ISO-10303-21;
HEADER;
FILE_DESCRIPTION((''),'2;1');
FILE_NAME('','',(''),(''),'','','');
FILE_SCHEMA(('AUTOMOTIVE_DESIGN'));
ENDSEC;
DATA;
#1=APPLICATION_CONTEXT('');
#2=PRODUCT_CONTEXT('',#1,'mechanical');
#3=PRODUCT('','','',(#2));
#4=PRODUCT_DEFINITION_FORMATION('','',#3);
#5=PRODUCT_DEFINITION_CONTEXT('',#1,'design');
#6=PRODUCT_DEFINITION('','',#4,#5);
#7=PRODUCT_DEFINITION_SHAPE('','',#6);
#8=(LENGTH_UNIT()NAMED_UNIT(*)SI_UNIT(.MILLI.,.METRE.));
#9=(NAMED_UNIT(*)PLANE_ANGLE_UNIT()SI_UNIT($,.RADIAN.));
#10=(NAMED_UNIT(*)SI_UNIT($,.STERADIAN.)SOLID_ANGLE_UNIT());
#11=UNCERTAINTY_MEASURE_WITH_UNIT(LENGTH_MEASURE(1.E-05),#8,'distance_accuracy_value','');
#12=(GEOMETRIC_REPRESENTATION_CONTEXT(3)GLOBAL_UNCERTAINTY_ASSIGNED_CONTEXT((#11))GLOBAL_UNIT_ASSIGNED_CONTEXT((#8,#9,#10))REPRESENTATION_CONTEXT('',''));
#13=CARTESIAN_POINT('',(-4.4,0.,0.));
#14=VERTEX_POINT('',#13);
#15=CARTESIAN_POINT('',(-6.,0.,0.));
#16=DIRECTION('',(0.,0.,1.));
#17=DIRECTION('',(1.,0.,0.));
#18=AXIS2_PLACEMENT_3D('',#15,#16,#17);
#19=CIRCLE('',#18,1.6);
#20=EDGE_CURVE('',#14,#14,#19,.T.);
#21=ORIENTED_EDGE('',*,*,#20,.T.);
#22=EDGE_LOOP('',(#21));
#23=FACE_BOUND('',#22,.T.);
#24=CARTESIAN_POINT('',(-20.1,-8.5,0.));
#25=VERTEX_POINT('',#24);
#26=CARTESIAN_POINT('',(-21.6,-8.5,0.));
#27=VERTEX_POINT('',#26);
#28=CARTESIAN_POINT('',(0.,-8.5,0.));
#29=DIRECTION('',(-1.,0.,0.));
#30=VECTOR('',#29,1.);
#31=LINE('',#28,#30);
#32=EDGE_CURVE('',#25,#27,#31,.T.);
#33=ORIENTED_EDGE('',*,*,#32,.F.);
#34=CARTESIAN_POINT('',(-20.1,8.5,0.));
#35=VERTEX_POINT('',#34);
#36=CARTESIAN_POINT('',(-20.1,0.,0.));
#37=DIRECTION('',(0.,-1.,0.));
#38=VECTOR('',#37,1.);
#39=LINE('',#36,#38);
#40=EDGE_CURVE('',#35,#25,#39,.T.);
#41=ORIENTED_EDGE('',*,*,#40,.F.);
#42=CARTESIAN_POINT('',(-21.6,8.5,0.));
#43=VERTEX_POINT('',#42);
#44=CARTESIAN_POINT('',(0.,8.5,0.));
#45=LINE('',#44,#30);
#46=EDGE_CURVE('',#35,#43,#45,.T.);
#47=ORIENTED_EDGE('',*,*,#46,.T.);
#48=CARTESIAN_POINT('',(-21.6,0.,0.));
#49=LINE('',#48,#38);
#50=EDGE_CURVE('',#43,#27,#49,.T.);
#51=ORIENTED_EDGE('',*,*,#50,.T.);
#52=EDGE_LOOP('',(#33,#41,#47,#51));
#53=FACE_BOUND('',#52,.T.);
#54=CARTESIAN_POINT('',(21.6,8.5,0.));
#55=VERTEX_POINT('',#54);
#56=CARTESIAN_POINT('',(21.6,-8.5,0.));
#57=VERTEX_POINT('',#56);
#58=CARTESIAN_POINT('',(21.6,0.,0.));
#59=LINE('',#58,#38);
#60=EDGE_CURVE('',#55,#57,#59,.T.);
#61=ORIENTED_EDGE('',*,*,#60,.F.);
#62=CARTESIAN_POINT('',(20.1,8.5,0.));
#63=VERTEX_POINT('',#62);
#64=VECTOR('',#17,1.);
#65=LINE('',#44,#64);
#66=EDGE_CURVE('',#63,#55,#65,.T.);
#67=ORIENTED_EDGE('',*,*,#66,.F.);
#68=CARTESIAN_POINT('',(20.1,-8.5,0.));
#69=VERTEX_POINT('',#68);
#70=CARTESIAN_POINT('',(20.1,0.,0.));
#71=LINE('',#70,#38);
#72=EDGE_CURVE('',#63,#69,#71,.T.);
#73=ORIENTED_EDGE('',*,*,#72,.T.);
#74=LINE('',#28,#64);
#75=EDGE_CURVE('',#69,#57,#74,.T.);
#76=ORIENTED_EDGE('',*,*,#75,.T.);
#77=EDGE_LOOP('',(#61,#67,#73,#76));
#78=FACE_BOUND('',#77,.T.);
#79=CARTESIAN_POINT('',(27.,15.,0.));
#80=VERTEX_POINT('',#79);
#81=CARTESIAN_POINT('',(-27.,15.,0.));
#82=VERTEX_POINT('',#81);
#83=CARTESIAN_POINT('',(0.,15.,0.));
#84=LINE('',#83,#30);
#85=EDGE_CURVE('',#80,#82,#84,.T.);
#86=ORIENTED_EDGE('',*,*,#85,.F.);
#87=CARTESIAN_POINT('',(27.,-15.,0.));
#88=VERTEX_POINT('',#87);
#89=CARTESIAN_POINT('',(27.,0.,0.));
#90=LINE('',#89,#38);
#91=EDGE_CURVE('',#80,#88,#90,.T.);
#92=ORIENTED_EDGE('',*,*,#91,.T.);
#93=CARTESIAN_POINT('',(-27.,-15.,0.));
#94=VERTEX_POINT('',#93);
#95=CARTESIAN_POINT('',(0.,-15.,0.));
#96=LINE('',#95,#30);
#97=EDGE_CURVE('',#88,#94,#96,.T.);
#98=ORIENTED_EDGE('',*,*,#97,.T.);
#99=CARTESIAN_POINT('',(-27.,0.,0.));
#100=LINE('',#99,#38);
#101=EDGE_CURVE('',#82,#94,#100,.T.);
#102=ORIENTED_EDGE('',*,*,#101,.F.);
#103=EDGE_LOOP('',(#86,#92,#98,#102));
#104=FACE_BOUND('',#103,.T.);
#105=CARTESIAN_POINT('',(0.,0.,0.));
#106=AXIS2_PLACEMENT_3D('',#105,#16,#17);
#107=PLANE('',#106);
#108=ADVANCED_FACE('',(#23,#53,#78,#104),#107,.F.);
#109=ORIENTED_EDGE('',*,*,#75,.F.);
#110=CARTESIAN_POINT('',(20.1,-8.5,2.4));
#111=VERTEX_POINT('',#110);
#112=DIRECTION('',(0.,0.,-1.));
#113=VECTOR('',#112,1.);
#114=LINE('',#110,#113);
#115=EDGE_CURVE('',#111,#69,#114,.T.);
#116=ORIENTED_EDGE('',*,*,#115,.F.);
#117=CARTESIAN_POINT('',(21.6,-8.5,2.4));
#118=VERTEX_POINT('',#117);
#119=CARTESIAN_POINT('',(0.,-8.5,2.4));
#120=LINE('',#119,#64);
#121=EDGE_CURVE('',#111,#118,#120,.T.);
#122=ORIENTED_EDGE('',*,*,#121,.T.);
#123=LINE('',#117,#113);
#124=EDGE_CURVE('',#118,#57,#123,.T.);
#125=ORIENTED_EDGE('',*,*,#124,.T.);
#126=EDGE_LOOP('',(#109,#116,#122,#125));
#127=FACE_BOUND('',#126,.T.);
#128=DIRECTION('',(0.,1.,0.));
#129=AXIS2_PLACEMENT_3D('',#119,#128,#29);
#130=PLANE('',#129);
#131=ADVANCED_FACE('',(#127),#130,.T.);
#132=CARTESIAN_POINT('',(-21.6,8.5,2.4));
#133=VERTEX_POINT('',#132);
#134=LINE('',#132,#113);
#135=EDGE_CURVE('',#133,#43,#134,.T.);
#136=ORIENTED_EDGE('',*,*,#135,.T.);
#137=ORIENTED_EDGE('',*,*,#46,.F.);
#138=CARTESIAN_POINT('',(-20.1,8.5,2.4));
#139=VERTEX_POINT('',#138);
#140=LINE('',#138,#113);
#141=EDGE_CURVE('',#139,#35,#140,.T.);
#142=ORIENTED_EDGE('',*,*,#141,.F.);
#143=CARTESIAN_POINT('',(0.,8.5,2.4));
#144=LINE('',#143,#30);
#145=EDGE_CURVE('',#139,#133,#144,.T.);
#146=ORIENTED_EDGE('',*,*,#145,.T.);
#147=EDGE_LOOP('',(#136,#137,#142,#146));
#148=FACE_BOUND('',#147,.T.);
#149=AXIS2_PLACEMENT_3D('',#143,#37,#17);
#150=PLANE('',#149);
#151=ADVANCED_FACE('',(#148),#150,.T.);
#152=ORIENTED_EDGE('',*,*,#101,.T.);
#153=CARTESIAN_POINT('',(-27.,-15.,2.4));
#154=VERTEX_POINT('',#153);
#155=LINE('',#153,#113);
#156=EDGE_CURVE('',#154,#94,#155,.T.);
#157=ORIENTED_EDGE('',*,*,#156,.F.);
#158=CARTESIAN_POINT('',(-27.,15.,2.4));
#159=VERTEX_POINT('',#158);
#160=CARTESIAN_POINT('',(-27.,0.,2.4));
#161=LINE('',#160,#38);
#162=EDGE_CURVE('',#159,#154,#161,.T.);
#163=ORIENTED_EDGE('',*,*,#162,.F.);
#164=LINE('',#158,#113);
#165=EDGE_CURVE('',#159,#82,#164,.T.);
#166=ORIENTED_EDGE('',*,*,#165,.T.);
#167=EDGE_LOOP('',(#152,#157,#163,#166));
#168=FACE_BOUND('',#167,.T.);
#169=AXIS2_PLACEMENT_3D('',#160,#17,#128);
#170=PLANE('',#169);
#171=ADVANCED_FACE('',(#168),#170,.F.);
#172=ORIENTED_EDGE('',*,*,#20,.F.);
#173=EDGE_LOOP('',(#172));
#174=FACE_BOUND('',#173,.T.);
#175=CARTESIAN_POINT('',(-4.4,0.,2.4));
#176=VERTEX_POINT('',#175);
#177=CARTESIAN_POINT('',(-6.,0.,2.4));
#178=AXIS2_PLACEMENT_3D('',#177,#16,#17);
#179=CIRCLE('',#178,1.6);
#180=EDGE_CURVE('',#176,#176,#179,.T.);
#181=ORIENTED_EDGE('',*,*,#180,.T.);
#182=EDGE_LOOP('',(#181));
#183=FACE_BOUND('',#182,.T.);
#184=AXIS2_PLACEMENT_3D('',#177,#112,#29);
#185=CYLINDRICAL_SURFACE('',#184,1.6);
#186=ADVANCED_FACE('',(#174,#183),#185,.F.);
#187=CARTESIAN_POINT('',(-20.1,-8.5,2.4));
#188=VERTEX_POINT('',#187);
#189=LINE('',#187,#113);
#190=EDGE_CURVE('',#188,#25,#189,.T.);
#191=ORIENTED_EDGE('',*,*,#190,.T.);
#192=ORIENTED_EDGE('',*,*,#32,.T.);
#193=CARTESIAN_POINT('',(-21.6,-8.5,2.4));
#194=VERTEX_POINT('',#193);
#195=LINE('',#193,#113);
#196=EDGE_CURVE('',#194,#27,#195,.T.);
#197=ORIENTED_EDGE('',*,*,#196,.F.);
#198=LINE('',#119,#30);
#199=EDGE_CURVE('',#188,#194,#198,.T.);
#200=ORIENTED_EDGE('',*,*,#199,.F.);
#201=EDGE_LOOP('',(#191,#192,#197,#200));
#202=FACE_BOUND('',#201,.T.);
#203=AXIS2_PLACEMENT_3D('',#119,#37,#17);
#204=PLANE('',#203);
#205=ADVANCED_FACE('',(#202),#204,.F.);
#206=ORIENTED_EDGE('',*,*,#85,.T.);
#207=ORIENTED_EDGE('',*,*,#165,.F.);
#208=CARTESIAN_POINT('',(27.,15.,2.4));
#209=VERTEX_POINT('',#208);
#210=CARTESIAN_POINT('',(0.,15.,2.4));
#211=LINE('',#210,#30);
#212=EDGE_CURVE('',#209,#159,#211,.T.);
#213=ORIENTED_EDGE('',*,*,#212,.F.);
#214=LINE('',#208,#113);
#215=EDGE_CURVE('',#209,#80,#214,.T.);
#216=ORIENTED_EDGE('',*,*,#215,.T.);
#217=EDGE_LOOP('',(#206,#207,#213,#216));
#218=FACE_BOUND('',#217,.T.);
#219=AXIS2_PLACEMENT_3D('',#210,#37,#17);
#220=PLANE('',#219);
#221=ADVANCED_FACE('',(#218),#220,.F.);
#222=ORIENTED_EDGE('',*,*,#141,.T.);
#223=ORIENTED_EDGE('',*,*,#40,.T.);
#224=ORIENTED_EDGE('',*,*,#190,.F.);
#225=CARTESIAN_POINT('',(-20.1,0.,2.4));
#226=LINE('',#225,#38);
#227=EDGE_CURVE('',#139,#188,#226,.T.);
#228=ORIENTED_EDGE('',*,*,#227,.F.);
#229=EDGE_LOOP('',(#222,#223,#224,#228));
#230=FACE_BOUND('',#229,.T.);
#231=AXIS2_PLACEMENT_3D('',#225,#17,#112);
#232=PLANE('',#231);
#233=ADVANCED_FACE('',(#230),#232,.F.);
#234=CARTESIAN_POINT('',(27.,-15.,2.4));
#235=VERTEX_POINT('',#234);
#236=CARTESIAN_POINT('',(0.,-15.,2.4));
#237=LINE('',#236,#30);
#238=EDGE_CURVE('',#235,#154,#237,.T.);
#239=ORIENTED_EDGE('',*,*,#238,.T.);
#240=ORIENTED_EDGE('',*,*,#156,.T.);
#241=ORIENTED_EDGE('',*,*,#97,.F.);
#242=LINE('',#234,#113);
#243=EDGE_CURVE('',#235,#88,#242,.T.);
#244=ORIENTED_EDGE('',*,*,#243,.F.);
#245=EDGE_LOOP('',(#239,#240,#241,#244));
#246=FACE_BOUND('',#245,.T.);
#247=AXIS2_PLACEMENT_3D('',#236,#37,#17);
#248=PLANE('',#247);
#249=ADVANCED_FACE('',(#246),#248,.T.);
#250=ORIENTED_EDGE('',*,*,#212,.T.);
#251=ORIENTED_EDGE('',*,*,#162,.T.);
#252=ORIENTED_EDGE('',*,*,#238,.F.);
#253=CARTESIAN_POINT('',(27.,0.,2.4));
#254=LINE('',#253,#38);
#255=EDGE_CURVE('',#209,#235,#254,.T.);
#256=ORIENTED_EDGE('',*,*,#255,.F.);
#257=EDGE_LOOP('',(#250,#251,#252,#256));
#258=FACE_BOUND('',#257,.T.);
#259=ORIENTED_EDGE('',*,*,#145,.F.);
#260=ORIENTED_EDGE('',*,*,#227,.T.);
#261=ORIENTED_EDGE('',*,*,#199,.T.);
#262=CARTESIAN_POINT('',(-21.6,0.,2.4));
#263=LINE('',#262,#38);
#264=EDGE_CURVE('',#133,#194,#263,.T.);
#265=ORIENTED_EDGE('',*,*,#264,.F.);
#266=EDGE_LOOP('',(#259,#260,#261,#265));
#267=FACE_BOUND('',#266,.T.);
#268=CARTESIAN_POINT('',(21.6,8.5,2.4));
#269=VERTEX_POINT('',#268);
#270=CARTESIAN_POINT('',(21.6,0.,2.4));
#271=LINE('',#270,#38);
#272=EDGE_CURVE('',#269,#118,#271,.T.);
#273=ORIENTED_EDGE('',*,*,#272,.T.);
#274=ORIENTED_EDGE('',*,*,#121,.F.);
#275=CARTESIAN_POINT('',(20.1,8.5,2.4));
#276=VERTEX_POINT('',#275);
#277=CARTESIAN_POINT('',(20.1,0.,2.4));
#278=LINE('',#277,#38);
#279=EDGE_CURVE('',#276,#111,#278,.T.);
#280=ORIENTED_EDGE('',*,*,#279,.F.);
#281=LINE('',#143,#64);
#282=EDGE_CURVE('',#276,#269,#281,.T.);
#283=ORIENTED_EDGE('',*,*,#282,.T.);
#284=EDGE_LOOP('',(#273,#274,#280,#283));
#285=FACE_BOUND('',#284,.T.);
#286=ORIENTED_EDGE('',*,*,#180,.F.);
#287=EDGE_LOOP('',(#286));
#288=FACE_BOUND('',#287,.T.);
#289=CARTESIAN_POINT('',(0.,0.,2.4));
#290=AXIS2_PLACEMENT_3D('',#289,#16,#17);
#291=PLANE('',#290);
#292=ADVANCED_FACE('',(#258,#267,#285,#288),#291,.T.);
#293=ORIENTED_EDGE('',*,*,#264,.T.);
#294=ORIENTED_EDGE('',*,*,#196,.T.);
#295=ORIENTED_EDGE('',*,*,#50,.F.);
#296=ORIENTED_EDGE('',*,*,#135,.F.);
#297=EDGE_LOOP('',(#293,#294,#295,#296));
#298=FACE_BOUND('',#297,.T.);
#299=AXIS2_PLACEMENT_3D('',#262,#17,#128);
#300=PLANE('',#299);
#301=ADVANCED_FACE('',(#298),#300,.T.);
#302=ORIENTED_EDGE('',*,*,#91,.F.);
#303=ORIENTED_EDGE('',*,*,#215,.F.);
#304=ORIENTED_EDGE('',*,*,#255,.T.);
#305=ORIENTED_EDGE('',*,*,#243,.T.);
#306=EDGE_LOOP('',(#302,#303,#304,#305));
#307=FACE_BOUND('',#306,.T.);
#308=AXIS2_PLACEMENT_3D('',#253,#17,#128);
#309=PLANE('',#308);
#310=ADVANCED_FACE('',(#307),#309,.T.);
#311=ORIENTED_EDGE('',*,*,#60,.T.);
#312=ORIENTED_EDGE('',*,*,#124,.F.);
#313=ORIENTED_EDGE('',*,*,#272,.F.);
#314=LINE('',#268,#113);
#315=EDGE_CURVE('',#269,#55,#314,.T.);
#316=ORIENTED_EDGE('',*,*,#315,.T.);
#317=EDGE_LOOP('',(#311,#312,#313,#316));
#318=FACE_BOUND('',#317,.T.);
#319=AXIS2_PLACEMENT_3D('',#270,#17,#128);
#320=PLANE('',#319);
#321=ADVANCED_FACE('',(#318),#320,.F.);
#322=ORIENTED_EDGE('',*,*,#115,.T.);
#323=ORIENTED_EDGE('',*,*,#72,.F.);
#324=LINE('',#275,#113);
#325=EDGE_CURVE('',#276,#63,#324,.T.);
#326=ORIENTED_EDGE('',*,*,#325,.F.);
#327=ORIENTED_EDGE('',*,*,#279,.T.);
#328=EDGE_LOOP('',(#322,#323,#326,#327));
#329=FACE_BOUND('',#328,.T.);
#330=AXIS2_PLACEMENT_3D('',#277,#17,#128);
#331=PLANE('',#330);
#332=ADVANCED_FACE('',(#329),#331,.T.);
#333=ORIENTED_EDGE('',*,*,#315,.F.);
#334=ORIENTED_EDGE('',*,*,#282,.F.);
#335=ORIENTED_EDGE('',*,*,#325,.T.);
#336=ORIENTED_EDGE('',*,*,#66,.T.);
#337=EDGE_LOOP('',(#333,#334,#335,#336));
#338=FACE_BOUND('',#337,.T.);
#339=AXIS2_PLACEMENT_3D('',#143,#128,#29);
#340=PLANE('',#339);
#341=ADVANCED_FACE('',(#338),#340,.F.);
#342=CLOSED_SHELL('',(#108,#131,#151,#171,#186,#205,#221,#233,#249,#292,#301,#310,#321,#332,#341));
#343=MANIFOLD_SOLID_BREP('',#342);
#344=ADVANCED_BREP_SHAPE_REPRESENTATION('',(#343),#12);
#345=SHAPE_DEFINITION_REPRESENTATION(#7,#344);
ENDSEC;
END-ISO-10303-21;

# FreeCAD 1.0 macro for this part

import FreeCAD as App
import Part
import Sketcher

doc = App.newDocument("Part")
body = doc.addObject("PartDesign::Body", "Body")

# Sketch on XY plane
sketch1 = body.newObject("Sketcher::SketchObject", "Sketch")
sketch1.AttachmentSupport = (doc.getObject("XY_Plane"), [""])
sketch1.MapMode = "FlatFace"
sketch1.addGeometry([
    Part.LineSegment(App.Vector(-27, 15, 0), App.Vector(-27, -15, 0)),  # 0
    Part.LineSegment(App.Vector(-27, -15, 0), App.Vector(27, -15, 0)),  # 1
    Part.LineSegment(App.Vector(27, -15, 0), App.Vector(27, 15, 0)),  # 2
    Part.LineSegment(App.Vector(27, 15, 0), App.Vector(-27, 15, 0)),  # 3
    Part.LineSegment(App.Vector(-20.1, -8.5, 0), App.Vector(-21.6, -8.5, 0)),  # 4
    Part.LineSegment(App.Vector(-21.6, -8.5, 0), App.Vector(-21.6, 8.5, 0)),  # 5
    Part.LineSegment(App.Vector(-21.6, 8.5, 0), App.Vector(-20.1, 8.5, 0)),  # 6
    Part.LineSegment(App.Vector(-20.1, 8.5, 0), App.Vector(-20.1, -8.5, 0)),  # 7
    Part.Circle(App.Vector(-6, 0, 0), App.Vector(0, 0, 1), 1.6),  # 8
    Part.LineSegment(App.Vector(21.6, -8.5, 0), App.Vector(20.1, -8.5, 0)),  # 9
    Part.LineSegment(App.Vector(20.1, -8.5, 0), App.Vector(20.1, 8.5, 0)),  # 10
    Part.LineSegment(App.Vector(20.1, 8.5, 0), App.Vector(21.6, 8.5, 0)),  # 11
    Part.LineSegment(App.Vector(21.6, 8.5, 0), App.Vector(21.6, -8.5, 0)),  # 12
], False)
sketch1.addConstraint([
    Sketcher.Constraint("Coincident", 0, 2, 1, 1),
    Sketcher.Constraint("Coincident", 1, 2, 2, 1),
    Sketcher.Constraint("Coincident", 2, 2, 3, 1),
    Sketcher.Constraint("Coincident", 3, 2, 0, 1),
    Sketcher.Constraint("Coincident", 4, 2, 5, 1),
    Sketcher.Constraint("Coincident", 5, 2, 6, 1),
    Sketcher.Constraint("Coincident", 6, 2, 7, 1),
    Sketcher.Constraint("Coincident", 7, 2, 4, 1),
    Sketcher.Constraint("Coincident", 9, 2, 10, 1),
    Sketcher.Constraint("Coincident", 10, 2, 11, 1),
    Sketcher.Constraint("Coincident", 11, 2, 12, 1),
    Sketcher.Constraint("Coincident", 12, 2, 9, 1),
    Sketcher.Constraint("Vertical", 0),
    Sketcher.Constraint("Horizontal", 1),
    Sketcher.Constraint("Vertical", 2),
    Sketcher.Constraint("Horizontal", 3),
    Sketcher.Constraint("Horizontal", 4),
    Sketcher.Constraint("Vertical", 5),
    Sketcher.Constraint("Horizontal", 6),
    Sketcher.Constraint("Vertical", 7),
    Sketcher.Constraint("Horizontal", 9),
    Sketcher.Constraint("Vertical", 10),
    Sketcher.Constraint("Horizontal", 11),
    Sketcher.Constraint("Vertical", 12),
    Sketcher.Constraint("Symmetric", 0, 2, 2, 2, -1, 1),
    Sketcher.Constraint("Symmetric", 6, 2, 9, 2, -1, 1),
    Sketcher.Constraint("Symmetric", 4, 2, 11, 2, -1, 1),
    Sketcher.Constraint("PointOnObject", 8, 3, -1),
    Sketcher.Constraint("Horizontal", 7, 2, 9, 2),
    Sketcher.Constraint("Diameter", 8, 3.2),
    Sketcher.Constraint("DistanceX", 1, 1, 1, 2, 54.0),
    Sketcher.Constraint("DistanceY", 0, 2, 0, 1, 30.0),
    Sketcher.Constraint("DistanceY", 5, 1, 5, 2, 17.0),
    Sketcher.Constraint("DistanceX", 4, 2, 4, 1, 1.5),
    Sketcher.Constraint("DistanceX", 8, 3, -1, 1, 6.0),
    Sketcher.Constraint("DistanceX", 4, 2, -1, 1, 21.6),
])
pad1 = body.newObject("PartDesign::Pad", "Pad")
pad1.Profile = sketch1
pad1.Length = 2.4

doc.recompute()
